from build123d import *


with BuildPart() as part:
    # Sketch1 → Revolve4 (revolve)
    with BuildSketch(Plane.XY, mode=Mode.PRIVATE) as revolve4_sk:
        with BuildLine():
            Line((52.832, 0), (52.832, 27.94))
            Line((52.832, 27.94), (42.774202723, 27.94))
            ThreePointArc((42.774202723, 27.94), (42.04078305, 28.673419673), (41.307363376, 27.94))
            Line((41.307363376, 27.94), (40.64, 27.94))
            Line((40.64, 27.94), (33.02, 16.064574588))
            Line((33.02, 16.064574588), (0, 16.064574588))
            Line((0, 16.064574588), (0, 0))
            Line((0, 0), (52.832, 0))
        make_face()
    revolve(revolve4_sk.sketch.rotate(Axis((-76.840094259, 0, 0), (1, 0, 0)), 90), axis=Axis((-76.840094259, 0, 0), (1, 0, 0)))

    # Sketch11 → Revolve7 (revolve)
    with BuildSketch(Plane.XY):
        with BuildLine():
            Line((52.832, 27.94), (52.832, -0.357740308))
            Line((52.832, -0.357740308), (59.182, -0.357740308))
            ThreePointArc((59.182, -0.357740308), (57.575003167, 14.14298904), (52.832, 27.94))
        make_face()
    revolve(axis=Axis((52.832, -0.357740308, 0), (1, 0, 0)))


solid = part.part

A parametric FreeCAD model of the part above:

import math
import FreeCAD as App
import Part
import Sketcher
Q = App.Units.Quantity

doc = App.newDocument("Part")
body = doc.addObject("PartDesign::Body", "Body")

# Sketch on XY plane
sketch1 = doc.addObject("Sketcher::SketchObject", "Sketch")
body.addObject(sketch1)
sketch1.AttachmentSupport = (doc.XY_Plane, [""])
sketch1.MapMode = "FlatFace"
sketch1.addGeometry([
    Part.LineSegment(App.Vector(52.8, 0, 0), App.Vector(52.8, 27.9, 0)),  # 0
    Part.LineSegment(App.Vector(52.8, 27.9, 0), App.Vector(42.8, 27.9, 0)),  # 1
    Part.ArcOfCircle(Part.Circle(App.Vector(42, 27.9, 0), App.Vector(0, 0, 1), 0.7), math.radians(0), math.radians(180)),  # 2
    Part.LineSegment(App.Vector(41.3, 27.9, 0), App.Vector(40.6, 27.9, 0)),  # 3
    Part.LineSegment(App.Vector(40.6, 27.9, 0), App.Vector(33, 16.1, 0)),  # 4
    Part.LineSegment(App.Vector(33, 16.1, 0), App.Vector(0, 16.1, 0)),  # 5
    Part.LineSegment(App.Vector(0, 16.1, 0), App.Vector(0, 0, 0)),  # 6
    Part.LineSegment(App.Vector(0, 0, 0), App.Vector(52.8, 0, 0)),  # 7
], False)
sketch1.addConstraint([
    Sketcher.Constraint("Coincident", 0, 2, 1, 1),
    Sketcher.Constraint("Coincident", 1, 2, 2, 1),
    Sketcher.Constraint("Coincident", 2, 2, 3, 1),
    Sketcher.Constraint("Coincident", 3, 2, 4, 1),
    Sketcher.Constraint("Coincident", 4, 2, 5, 1),
    Sketcher.Constraint("Coincident", 5, 2, 6, 1),
    Sketcher.Constraint("Coincident", 6, 2, 7, 1),
    Sketcher.Constraint("Coincident", 7, 2, 0, 1),
    Sketcher.Constraint("Vertical", 0),
    Sketcher.Constraint("Horizontal", 1),
    Sketcher.Constraint("Horizontal", 3),
    Sketcher.Constraint("Horizontal", 5),
    Sketcher.Constraint("Vertical", 6),
    Sketcher.Constraint("Horizontal", 7),
    Sketcher.Constraint("Coincident", 6, 2, -1, 1),
    Sketcher.Constraint("Horizontal", 2, 3, 0, 2),
    Sketcher.Constraint("Horizontal", 1, 2, 2, 2),
    Sketcher.Constraint("DistanceX", 5, 2, 5, 1, Q("1.3 in")),
    Sketcher.Constraint("DistanceY", 0, 1, 0, 2, Q("1.1 in")),
    Sketcher.Constraint("DistanceX", 7, 1, 7, 2, Q("2.08 in")),
    Sketcher.Constraint("DistanceX", -1, 1, 3, 2, Q("1.6 in")),
    Sketcher.Constraint("Radius", 2, 0.73342),
    Sketcher.Constraint("Distance", 4, 14.10993),
    Sketcher.Constraint("DistanceX", 1, 2, 1, 1, 10.057797),
])
revolution = doc.addObject("PartDesign::Revolution", "Revolution")
body.addObject(revolution)
revolution.Profile = sketch1
revolution.ReferenceAxis = (sketch1, ["H_Axis"])
revolution.Angle = 360

# Sketch on XY plane
sketch2 = doc.addObject("Sketcher::SketchObject", "Sketch001")
body.addObject(sketch2)
sketch2.AttachmentSupport = (doc.XY_Plane, [""])
sketch2.MapMode = "FlatFace"
sketch2.addGeometry([
    Part.LineSegment(App.Vector(53, 28, 0), App.Vector(53, 0, 0)),
    Part.LineSegment(App.Vector(53, 0, 0), App.Vector(59, 0, 0)),
    Part.ArcOfCircle(Part.Circle(App.Vector(-7, 0, 0), App.Vector(0, 0, 1), 66), math.radians(0), math.radians(25)),
], False)
sketch2.addGeometry(Part.LineSegment(App.Vector(-7, 0, 0), App.Vector(59, 0, 0)), True)  # axis
sketch2.addConstraint([
    Sketcher.Constraint("Coincident", 0, 2, 1, 1),
    Sketcher.Constraint("Coincident", 1, 2, 2, 1),
    Sketcher.Constraint("Coincident", 2, 2, 0, 1),
    Sketcher.Constraint("Vertical", 0),
    Sketcher.Constraint("Horizontal", 1),
    Sketcher.Constraint("Horizontal", 3),
    Sketcher.Constraint("Coincident", 3, 1, 2, 3),
    Sketcher.Constraint("Coincident", 3, 2, 1, 2),
    Sketcher.Constraint("DistanceX", 1, 1, 1, 2, Q("0.25 in")),
    Sketcher.Constraint("DistanceY", -1, 1, 2, 2, Q("1.1 in")),
    Sketcher.Constraint("DistanceX", -1, 1, 0, 2, Q("2.08 in")),
    Sketcher.Constraint("Radius", 2, 66.227134),
])
revolution2 = doc.addObject("PartDesign::Revolution", "Revolution001")
body.addObject(revolution2)
revolution2.Profile = sketch2
revolution2.ReferenceAxis = (sketch2, ["Axis0"])
revolution2.Angle = 360

doc.recompute()
